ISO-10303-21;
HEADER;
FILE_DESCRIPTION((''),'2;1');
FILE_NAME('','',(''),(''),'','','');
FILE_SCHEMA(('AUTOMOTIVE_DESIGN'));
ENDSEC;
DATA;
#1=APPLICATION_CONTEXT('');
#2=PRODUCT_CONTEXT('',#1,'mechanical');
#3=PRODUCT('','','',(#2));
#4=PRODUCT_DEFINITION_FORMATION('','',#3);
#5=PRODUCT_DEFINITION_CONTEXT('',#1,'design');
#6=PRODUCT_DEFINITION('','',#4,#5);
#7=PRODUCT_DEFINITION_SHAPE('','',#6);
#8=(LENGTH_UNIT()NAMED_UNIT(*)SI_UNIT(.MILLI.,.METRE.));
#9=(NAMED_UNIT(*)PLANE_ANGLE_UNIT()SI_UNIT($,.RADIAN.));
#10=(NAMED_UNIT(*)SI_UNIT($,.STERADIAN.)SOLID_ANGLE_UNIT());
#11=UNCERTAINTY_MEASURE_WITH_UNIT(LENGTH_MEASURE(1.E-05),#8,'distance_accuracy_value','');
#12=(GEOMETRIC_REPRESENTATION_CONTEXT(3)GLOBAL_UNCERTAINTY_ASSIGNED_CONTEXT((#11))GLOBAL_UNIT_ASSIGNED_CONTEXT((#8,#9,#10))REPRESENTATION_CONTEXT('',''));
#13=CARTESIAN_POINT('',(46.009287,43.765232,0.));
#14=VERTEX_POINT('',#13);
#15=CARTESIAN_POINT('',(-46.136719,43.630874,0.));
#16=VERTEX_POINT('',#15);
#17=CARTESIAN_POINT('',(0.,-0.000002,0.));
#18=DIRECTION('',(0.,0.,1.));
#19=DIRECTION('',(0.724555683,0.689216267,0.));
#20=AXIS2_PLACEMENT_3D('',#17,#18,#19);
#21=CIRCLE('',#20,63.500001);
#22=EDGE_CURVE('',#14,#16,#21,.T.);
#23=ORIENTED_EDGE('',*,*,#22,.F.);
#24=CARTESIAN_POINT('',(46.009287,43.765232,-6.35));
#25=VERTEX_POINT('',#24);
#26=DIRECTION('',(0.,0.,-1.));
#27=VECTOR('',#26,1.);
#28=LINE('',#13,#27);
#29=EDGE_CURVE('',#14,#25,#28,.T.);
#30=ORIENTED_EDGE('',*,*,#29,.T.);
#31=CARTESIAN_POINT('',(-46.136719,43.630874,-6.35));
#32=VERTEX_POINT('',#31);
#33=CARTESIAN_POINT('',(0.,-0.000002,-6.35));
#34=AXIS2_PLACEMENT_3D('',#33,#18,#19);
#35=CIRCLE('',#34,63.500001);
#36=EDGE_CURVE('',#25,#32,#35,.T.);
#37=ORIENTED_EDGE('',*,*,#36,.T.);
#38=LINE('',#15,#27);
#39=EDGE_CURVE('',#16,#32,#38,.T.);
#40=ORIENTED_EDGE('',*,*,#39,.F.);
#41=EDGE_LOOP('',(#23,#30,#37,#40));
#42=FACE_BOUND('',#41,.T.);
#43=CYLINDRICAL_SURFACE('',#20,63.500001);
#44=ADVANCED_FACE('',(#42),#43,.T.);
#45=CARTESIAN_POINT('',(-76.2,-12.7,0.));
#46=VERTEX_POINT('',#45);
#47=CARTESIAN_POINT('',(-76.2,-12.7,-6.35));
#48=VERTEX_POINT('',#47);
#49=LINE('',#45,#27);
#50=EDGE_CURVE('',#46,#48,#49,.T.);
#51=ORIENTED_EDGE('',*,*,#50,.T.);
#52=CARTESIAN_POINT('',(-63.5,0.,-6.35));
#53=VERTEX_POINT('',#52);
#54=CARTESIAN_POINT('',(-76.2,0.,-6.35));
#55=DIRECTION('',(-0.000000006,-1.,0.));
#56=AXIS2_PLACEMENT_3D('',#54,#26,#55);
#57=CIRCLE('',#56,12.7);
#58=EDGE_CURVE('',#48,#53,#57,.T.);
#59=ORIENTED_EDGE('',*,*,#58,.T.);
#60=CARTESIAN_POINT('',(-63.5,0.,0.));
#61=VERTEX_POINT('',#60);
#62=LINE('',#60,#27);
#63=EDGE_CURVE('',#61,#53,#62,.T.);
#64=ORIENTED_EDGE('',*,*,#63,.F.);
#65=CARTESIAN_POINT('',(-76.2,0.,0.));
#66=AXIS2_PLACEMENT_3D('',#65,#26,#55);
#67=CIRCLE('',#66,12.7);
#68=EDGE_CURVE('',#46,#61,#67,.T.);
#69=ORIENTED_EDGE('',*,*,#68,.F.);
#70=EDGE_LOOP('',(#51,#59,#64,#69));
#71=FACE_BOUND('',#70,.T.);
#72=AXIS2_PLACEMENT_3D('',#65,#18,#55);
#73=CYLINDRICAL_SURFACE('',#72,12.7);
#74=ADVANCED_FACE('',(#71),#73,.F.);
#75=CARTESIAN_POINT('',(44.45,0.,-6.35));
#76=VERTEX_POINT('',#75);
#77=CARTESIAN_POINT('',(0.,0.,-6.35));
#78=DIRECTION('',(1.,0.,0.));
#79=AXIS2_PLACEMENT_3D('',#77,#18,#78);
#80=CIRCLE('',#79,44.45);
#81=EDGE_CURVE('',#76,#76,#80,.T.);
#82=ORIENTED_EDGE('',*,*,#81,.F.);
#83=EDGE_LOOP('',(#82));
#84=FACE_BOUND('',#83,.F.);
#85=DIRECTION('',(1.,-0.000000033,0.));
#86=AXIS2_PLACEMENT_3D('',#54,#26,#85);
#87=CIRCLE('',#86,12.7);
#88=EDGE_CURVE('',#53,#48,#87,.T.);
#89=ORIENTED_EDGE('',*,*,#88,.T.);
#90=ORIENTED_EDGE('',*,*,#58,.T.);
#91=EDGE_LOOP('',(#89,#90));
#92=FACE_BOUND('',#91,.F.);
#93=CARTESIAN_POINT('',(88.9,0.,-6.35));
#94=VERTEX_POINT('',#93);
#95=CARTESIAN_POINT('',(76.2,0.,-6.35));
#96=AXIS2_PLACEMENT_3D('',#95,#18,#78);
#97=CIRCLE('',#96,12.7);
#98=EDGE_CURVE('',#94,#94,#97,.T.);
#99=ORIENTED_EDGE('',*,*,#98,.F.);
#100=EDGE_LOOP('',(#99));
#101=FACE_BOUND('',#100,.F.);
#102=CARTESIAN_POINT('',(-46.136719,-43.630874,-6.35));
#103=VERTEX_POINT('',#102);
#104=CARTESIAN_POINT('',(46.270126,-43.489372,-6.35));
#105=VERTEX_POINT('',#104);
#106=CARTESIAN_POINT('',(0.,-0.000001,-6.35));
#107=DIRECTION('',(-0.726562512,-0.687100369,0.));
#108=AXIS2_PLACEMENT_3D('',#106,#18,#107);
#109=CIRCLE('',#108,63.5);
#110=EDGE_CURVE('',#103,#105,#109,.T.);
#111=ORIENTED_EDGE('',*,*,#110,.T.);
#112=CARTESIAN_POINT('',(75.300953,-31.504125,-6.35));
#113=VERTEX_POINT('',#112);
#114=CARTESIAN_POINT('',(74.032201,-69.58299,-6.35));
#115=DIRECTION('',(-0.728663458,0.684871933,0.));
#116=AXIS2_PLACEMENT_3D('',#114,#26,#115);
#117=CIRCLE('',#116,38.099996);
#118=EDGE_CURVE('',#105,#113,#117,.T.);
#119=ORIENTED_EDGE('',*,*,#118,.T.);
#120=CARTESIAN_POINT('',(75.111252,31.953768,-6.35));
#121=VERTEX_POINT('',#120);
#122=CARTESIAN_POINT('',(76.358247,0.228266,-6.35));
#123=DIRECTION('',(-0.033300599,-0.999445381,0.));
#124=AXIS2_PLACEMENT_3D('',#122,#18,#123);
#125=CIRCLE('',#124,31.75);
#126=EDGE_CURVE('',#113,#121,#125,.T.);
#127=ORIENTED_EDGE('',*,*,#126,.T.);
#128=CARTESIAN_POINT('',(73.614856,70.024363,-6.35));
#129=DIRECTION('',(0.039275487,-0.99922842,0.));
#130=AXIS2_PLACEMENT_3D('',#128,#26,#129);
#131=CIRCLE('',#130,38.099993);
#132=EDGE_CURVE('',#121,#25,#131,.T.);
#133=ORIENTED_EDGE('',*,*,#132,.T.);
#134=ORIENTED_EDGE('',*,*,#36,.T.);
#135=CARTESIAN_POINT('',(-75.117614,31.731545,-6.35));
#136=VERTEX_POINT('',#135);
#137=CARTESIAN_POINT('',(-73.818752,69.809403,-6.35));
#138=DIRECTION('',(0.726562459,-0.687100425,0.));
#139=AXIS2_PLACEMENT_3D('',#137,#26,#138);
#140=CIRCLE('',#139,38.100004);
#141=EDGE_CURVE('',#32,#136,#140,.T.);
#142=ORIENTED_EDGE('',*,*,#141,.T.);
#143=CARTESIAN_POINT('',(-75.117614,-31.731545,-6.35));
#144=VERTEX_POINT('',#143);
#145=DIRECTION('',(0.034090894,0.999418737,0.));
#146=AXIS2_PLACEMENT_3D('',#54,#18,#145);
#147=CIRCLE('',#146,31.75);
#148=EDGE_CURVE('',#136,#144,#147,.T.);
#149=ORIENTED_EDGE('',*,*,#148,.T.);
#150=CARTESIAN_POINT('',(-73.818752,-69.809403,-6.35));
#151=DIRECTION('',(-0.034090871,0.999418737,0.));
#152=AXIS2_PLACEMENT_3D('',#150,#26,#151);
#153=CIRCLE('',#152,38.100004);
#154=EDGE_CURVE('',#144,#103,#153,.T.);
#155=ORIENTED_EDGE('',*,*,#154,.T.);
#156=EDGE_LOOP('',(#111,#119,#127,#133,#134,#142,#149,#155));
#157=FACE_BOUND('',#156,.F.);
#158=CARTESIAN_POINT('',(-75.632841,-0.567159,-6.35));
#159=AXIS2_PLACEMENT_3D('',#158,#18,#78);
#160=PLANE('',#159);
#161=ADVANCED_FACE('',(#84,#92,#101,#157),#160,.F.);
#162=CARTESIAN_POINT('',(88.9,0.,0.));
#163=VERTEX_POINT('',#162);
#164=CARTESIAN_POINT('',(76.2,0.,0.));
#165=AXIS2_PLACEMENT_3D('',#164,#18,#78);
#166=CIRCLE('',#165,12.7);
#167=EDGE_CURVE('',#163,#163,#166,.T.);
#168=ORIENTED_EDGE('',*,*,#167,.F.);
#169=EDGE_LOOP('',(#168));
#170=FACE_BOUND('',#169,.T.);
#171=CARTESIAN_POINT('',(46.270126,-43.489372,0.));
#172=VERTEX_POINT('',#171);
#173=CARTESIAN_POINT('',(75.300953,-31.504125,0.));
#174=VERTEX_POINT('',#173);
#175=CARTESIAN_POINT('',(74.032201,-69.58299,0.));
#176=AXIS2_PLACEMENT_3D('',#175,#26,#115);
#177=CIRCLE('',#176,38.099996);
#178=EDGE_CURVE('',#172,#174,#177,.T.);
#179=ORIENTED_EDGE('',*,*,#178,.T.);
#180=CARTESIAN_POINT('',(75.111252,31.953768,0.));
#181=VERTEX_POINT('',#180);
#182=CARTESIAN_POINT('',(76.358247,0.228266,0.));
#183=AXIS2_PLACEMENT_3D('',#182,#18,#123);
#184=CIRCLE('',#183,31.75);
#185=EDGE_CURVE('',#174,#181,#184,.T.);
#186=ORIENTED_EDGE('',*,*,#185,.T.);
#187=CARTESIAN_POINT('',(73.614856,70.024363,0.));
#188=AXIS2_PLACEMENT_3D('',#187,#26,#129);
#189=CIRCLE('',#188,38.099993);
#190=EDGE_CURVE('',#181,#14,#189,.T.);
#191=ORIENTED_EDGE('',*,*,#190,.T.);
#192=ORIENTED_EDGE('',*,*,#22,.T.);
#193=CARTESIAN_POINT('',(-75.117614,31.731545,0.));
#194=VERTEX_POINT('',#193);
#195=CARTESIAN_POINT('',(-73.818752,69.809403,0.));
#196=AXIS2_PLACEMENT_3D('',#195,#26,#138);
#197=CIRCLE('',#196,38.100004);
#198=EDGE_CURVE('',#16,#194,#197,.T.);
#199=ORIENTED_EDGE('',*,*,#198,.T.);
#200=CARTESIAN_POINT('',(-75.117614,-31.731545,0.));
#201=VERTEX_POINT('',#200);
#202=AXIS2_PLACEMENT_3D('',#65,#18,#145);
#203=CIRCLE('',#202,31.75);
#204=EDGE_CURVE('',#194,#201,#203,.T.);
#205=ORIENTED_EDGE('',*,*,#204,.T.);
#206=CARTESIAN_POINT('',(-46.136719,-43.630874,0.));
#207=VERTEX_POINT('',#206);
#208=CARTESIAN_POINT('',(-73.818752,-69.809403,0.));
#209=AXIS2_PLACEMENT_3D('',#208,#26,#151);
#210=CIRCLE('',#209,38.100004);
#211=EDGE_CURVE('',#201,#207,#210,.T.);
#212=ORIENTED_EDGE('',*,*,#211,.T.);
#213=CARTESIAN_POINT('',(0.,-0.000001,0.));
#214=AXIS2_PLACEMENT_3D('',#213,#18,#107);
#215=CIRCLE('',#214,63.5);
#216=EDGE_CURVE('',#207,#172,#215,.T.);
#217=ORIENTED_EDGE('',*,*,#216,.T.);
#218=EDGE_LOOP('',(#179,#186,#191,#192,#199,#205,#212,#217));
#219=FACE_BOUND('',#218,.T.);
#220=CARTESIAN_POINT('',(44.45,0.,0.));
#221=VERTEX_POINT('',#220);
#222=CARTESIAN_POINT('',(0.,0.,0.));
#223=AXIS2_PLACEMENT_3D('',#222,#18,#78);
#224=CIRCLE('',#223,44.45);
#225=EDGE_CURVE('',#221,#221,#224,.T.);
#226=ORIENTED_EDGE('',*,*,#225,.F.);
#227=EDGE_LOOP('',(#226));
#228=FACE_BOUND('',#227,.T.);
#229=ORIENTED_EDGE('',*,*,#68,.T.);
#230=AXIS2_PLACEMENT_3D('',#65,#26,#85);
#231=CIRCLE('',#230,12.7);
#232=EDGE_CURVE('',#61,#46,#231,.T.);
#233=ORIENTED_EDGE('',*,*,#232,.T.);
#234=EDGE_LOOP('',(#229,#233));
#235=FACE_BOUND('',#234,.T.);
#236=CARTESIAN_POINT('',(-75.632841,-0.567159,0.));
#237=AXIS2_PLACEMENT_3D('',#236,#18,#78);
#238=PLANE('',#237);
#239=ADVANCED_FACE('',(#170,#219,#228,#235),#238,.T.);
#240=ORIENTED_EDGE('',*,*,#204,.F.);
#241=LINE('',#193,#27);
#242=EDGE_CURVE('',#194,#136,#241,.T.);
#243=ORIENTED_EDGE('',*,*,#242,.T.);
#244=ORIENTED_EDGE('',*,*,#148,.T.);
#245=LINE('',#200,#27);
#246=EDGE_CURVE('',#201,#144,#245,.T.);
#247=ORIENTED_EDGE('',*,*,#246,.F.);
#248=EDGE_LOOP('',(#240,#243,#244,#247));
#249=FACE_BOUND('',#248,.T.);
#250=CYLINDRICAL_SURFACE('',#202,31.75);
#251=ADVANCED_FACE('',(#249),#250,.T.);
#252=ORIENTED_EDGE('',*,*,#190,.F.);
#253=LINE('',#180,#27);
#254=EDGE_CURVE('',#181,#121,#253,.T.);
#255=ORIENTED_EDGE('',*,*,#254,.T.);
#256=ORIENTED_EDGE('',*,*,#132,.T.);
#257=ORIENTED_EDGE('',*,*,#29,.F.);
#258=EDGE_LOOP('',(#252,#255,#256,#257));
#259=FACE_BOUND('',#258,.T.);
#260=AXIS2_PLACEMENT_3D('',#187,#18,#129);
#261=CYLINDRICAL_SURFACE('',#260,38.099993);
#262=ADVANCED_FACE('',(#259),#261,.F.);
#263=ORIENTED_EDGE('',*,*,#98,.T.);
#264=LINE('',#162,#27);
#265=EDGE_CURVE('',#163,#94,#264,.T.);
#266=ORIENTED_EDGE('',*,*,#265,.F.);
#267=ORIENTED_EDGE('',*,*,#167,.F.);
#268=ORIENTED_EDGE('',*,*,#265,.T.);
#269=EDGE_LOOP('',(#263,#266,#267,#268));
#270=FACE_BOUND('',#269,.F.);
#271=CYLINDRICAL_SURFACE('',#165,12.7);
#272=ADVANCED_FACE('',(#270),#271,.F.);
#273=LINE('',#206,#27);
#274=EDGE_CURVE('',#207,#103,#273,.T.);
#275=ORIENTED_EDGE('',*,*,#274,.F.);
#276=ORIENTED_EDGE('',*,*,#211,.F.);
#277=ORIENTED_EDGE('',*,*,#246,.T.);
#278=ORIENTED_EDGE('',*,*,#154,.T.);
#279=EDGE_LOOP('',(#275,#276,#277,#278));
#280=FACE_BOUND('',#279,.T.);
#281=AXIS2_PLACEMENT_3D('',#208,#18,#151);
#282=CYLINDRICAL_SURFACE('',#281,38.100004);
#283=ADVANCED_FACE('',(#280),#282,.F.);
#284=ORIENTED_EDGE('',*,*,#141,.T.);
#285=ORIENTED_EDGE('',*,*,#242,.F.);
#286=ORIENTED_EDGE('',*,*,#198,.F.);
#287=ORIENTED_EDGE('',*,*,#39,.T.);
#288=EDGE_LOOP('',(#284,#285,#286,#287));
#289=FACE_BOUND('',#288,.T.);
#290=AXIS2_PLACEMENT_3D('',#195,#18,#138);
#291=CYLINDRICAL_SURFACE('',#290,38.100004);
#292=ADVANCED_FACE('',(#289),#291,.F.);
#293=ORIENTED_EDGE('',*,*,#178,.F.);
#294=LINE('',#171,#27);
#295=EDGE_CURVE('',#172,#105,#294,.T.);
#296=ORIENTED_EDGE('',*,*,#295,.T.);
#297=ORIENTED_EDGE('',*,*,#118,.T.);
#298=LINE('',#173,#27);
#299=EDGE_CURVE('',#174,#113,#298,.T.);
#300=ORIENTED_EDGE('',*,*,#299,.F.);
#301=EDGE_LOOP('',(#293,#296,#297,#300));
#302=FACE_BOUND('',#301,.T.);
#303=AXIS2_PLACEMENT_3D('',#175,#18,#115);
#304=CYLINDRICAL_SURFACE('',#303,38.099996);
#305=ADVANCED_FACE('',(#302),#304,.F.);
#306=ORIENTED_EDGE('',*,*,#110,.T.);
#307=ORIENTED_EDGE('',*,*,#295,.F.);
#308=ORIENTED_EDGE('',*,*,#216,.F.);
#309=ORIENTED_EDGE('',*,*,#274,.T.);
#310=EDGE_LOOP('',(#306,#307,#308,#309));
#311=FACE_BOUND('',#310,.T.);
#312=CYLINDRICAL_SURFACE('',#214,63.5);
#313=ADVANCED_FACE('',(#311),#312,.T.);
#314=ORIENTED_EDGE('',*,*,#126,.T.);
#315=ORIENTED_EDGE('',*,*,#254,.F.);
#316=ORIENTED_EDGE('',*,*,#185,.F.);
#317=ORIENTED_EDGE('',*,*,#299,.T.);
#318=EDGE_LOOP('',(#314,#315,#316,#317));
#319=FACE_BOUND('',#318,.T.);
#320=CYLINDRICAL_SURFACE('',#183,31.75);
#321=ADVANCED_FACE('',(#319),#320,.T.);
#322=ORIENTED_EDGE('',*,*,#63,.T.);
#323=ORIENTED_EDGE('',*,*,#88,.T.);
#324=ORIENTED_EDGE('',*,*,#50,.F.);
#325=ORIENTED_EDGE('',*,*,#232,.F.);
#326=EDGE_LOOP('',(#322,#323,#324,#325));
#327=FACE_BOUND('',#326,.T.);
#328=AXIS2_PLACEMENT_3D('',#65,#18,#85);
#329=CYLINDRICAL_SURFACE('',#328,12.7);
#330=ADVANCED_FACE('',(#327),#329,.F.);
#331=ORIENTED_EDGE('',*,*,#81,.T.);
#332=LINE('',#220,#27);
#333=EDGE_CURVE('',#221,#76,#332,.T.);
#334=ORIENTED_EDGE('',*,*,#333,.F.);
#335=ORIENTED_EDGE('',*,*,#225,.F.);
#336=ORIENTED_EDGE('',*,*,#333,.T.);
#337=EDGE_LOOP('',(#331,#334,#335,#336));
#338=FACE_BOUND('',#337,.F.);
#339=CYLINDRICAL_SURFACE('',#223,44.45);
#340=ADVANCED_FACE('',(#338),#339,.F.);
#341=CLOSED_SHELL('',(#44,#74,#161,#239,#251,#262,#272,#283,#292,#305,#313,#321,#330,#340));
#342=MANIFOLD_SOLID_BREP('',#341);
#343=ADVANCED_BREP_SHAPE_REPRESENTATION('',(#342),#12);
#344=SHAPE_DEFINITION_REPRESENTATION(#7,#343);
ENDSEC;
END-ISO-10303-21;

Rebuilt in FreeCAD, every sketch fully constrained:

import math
import FreeCAD as App
import Part
import Sketcher
from FreeCAD import Vector
Q = App.Units.Quantity

doc = App.newDocument("Part")
params = doc.addObject("Spreadsheet::Sheet", "Params")
for row, (alias, value) in enumerate([
    ("sketch1_diameter", "1 in"),
    ("sketch1_diameter2", "3.5 in"),
    ("sketch1_radius", "1.5000002 in"),
    ("sketch1_radius2", "2.5 in"),
    ("sketch1_radius3", "1.4999998 in"),
    ("pad1_length", "0.25 in"),
], start=1):
    params.set(f"A{row}", alias)
    params.set(f"B{row}", "=" + value)
    params.setAlias(f"B{row}", alias)

body = doc.addObject("PartDesign::Body", "Body")

sketch1 = doc.addObject("Sketcher::SketchObject", "Sketch")
body.addObject(sketch1)
sketch1.AttachmentSupport = (doc.XY_Plane, [""])
sketch1.MapMode = "FlatFace"
sketch1.addGeometry([
    Part.ArcOfCircle(Part.Circle(Vector(-74, 70, 0), Vector(0, 0, 1), 38), math.radians(-92), math.radians(-43)),
    Part.ArcOfCircle(Part.Circle(Vector(-76, 0, 0), Vector(0, 0, 1), 32), math.radians(88), math.radians(272)),
    Part.ArcOfCircle(Part.Circle(Vector(-74, -70, 0), Vector(0, 0, 1), 38), math.radians(43), math.radians(92)),
    Part.ArcOfCircle(Part.Circle(Vector(0, 0, 0), Vector(0, 0, 1), 63), math.radians(-137), math.radians(-43)),
    Part.ArcOfCircle(Part.Circle(Vector(74, -70, 0), Vector(0, 0, 1), 38), math.radians(88), math.radians(137)),
    Part.ArcOfCircle(Part.Circle(Vector(76, 0, 0), Vector(0, 0, 1), 32), math.radians(-92), math.radians(92)),
    Part.ArcOfCircle(Part.Circle(Vector(74, 70, 0), Vector(0, 0, 1), 38), math.radians(-136), math.radians(-88)),
    Part.ArcOfCircle(Part.Circle(Vector(0, 0, 0), Vector(0, 0, 1), 64), math.radians(44), math.radians(137)),
    Part.ArcOfCircle(Part.Circle(Vector(-76, 0, 0), Vector(0, 0, 1), 13), math.radians(-90), math.radians(0)),
    Part.ArcOfCircle(Part.Circle(Vector(-76, 0, 0), Vector(0, 0, 1), 13), math.radians(0), math.radians(270)),
    Part.Circle(Vector(0, 0, 0), Vector(0, 0, 1), 44),
    Part.Circle(Vector(76, 0, 0), Vector(0, 0, 1), 13),
], False)
sketch1.addConstraint([
    Sketcher.Constraint("Tangent", 0, 1, 1, 1),
    Sketcher.Constraint("Tangent", 1, 2, 2, 2),
    Sketcher.Constraint("Tangent", 2, 1, 3, 1),
    Sketcher.Constraint("Tangent", 3, 2, 4, 2),
    Sketcher.Constraint("Tangent", 4, 1, 5, 1),
    Sketcher.Constraint("Tangent", 5, 2, 6, 2),
    Sketcher.Constraint("Tangent", 6, 1, 7, 1),
    Sketcher.Constraint("Tangent", 7, 2, 0, 2),
    Sketcher.Constraint("Tangent", 8, 1, 9, 2),
    Sketcher.Constraint("Coincident", 9, 1, 8, 2),
    Sketcher.Constraint("Coincident", 3, 3, -1, 1),
    Sketcher.Constraint("Coincident", 7, 3, -1, 1),
    Sketcher.Constraint("Coincident", 10, 3, -1, 1),
    Sketcher.Constraint("Coincident", 8, 3, 1, 3),
    Sketcher.Constraint("Equal", 0, 2),
    Sketcher.Constraint("Equal", 1, 5),
    Sketcher.Constraint("Equal", 3, 7),
    Sketcher.Constraint("Equal", 9, 11),
    Sketcher.Constraint("Symmetric", 1, 3, 11, 3, -1, 1),
    Sketcher.Constraint("PointOnObject", 1, 3, -1),
    Sketcher.Constraint("PointOnObject", 9, 1, -1),
    Sketcher.Constraint("Vertical", 9, 3, 8, 1),
    Sketcher.Constraint("Diameter", 11, Q("1 in")),
    Sketcher.Constraint("Diameter", 10, Q("3.5 in")),
    Sketcher.Constraint("Radius", 0, Q("1.5000002 in")),
    Sketcher.Constraint("Radius", 3, Q("2.5 in")),
    Sketcher.Constraint("Radius", 4, Q("1.4999998 in")),
    Sketcher.Constraint("Radius", 1, Q("1.25 in")),
    Sketcher.Constraint("DistanceX", 1, 3, -1, 1, Q("3 in")),
    Sketcher.Constraint("Radius", 6, Q("38.099993 mm")),
    Sketcher.Constraint("DistanceX", -1, 1, 4, 3, Q("74.032201 mm")),
    Sketcher.Constraint("DistanceX", 0, 3, 5, 3, Q("150.176999 mm")),
])
sketch1.setExpression("Constraints[22]", "Params.sketch1_diameter")
sketch1.setExpression("Constraints[23]", "Params.sketch1_diameter2")
sketch1.setExpression("Constraints[24]", "Params.sketch1_radius")
sketch1.setExpression("Constraints[25]", "Params.sketch1_radius2")
sketch1.setExpression("Constraints[26]", "Params.sketch1_radius3")
pad1 = doc.addObject("PartDesign::Pad", "Pad")
body.addObject(pad1)
pad1.Profile = sketch1
pad1.setExpression("Length", "Params.pad1_length")
pad1.Reversed = True

doc.recompute()
